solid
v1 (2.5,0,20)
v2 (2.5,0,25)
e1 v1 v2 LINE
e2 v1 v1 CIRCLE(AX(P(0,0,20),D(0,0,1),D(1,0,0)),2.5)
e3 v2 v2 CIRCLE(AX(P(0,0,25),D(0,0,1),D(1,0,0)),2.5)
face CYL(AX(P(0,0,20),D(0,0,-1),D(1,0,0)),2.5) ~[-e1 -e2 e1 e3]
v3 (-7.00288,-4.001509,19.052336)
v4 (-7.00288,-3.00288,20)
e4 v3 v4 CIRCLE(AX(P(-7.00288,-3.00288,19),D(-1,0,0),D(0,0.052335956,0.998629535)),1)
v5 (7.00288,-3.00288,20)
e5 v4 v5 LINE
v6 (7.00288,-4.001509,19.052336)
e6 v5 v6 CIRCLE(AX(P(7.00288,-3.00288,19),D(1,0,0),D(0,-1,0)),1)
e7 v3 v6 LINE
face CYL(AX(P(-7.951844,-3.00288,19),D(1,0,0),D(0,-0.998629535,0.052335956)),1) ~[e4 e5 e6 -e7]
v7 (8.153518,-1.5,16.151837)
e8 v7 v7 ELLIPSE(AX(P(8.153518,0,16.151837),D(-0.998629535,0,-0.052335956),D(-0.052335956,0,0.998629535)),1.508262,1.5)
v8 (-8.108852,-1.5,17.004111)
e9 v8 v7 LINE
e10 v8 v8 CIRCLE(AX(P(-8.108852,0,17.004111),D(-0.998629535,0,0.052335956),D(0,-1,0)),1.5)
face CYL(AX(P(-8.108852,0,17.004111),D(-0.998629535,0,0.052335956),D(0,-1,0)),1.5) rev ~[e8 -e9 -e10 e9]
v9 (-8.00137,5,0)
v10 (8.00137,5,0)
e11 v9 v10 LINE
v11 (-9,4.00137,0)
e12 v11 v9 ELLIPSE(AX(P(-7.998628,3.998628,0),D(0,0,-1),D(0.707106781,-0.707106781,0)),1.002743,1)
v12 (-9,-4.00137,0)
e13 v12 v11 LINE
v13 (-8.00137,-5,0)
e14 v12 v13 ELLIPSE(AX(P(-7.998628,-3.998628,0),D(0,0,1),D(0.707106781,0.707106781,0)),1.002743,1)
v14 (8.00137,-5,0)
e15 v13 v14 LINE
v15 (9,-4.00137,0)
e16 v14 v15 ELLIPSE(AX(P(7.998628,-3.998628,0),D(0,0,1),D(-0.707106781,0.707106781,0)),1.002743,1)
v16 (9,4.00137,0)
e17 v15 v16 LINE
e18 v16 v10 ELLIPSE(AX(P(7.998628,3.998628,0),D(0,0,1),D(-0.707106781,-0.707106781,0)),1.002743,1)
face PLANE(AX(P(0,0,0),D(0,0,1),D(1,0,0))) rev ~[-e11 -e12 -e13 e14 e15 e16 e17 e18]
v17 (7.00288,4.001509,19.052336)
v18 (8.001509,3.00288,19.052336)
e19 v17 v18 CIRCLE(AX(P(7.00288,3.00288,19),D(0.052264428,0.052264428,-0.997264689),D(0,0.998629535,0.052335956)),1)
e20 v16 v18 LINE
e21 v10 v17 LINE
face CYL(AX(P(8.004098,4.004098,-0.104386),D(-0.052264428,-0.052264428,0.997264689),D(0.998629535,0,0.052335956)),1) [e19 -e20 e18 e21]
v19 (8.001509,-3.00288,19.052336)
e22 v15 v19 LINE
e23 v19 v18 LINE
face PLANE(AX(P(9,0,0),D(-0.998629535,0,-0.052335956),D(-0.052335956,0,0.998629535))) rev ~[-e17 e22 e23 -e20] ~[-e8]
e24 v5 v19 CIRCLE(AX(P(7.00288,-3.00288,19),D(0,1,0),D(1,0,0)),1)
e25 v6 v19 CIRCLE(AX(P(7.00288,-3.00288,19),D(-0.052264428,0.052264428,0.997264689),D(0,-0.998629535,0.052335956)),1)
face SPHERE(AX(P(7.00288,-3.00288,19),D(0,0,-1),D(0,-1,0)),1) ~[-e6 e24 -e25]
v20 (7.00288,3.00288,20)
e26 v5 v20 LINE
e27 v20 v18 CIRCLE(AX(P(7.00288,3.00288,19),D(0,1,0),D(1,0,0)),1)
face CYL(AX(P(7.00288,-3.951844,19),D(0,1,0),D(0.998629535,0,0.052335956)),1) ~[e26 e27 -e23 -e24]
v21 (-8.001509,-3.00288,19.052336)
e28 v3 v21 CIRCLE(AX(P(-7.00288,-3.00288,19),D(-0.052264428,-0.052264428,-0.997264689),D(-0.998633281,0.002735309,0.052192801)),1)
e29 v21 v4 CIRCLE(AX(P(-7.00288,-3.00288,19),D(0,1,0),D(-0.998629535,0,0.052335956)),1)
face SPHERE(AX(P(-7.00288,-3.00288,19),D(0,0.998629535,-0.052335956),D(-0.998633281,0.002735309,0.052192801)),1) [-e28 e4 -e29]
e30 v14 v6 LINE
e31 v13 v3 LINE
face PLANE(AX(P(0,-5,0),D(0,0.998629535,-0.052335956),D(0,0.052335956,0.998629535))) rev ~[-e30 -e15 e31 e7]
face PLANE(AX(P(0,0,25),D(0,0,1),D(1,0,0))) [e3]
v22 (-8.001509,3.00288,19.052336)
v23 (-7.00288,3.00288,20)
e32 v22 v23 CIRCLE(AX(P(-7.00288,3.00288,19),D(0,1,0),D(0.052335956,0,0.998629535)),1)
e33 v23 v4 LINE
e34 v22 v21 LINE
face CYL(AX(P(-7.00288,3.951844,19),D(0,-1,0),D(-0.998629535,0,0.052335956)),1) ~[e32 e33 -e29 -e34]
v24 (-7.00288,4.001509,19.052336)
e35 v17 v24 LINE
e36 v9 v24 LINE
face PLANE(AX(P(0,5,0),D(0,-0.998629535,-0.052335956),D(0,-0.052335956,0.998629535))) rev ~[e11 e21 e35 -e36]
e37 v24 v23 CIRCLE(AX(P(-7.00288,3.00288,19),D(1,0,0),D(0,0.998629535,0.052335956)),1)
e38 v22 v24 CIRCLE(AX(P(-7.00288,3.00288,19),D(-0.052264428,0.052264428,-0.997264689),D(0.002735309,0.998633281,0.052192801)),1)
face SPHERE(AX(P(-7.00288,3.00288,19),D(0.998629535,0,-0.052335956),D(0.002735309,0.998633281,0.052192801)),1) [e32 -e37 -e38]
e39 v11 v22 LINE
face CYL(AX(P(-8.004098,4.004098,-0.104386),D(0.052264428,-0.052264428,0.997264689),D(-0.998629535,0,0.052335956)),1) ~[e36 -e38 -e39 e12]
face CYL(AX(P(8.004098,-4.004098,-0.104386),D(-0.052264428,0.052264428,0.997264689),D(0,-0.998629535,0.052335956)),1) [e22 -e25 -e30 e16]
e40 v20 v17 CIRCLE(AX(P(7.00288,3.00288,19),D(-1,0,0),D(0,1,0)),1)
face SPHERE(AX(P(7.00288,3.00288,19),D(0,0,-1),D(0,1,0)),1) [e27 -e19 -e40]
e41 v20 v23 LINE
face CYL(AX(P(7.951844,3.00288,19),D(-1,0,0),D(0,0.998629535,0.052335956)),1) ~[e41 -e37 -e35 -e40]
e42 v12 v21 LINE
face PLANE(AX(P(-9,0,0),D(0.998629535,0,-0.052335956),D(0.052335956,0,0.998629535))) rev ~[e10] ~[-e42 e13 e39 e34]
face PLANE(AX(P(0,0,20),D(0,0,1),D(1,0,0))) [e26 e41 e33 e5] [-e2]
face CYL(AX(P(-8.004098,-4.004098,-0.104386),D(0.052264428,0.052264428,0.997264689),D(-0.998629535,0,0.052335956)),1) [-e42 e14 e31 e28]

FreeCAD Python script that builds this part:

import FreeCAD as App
import Part
import Sketcher
from FreeCAD import Vector
Q = App.Units.Quantity


def edges_at(feature, points):
    """Names of the edges that pass closest to the given points."""
    edges = feature.Shape.Edges
    near = lambda p: min(range(len(edges)), key=lambda i: edges[i].distToShape(Part.Vertex(*p))[0])
    return sorted({f"Edge{near(p) + 1}" for p in points})

doc = App.newDocument("Part")
params = doc.addObject("Spreadsheet::Sheet", "Params")
for row, (alias, value) in enumerate([
    ("sketch1_width", "18 mm"),
    ("sketch1_height", "10 mm"),
    ("pad1_length", "20 mm"),
    ("pad1_taper", "-3 deg"),
    ("sketch2_diameter", "5 mm"),
    ("pad2_length", "5 mm"),
    ("fillet_radius", "1 mm"),
    ("sketch3_diameter", "3 mm"),
    ("pocket1_length", "25.4 mm"),
], start=1):
    params.set(f"A{row}", alias)
    params.set(f"B{row}", "=" + value)
    params.setAlias(f"B{row}", alias)

body = doc.addObject("PartDesign::Body", "Body")

# Sketch on XY plane
sketch1 = body.newObject("Sketcher::SketchObject", "Sketch")
sketch1.AttachmentSupport = (doc.getObject("XY_Plane"), [""])
sketch1.MapMode = "FlatFace"
sketch1.addGeometry([
    Part.LineSegment(Vector(-9, 5, 0), Vector(-9, -5, 0)),
    Part.LineSegment(Vector(-9, -5, 0), Vector(9, -5, 0)),
    Part.LineSegment(Vector(9, -5, 0), Vector(9, 5, 0)),
    Part.LineSegment(Vector(9, 5, 0), Vector(-9, 5, 0)),
], False)
sketch1.addConstraint([
    Sketcher.Constraint("Coincident", 0, 2, 1, 1),
    Sketcher.Constraint("Coincident", 1, 2, 2, 1),
    Sketcher.Constraint("Coincident", 2, 2, 3, 1),
    Sketcher.Constraint("Coincident", 3, 2, 0, 1),
    Sketcher.Constraint("Vertical", 0),
    Sketcher.Constraint("Horizontal", 1),
    Sketcher.Constraint("Vertical", 2),
    Sketcher.Constraint("Horizontal", 3),
    Sketcher.Constraint("Symmetric", 0, 2, 2, 2, -1, 1),
    Sketcher.Constraint("DistanceX", 1, 1, 1, 2, Q("18 mm")),
    Sketcher.Constraint("DistanceY", 0, 2, 0, 1, Q("10 mm")),
])
sketch1.setExpression("Constraints[9]", "Params.sketch1_width")
sketch1.setExpression("Constraints[10]", "Params.sketch1_height")
pad1 = body.newObject("PartDesign::Pad", "Pad")
pad1.Profile = sketch1
pad1.setExpression("Length", "Params.pad1_length")
pad1.setExpression("TaperAngle", "Params.pad1_taper")

# Sketch on XY plane
sketch2 = body.newObject("Sketcher::SketchObject", "Sketch001")
sketch2.AttachmentSupport = (doc.getObject("XY_Plane"), [""])
sketch2.MapMode = "FlatFace"
sketch2.AttachmentOffset = App.Placement(Vector(0, 0, 20), App.Rotation())
sketch2.addGeometry(Part.Circle(Vector(0, 0, 0), Vector(0, 0, 1), 2.5), False)
sketch2.addConstraint([
    Sketcher.Constraint("Coincident", 0, 3, -1, 1),
    Sketcher.Constraint("Diameter", 0, Q("5 mm")),
])
sketch2.setExpression("Constraints[1]", "Params.sketch2_diameter")
pad2 = body.newObject("PartDesign::Pad", "Pad001")
pad2.Profile = sketch2
pad2.setExpression("Length", "Params.pad2_length")
doc.recompute()

fillet = body.newObject("PartDesign::Fillet", "Fillet")
fillet.Base = (pad2, edges_at(pad2, [
    (8.476, 4.476, 10),
    (0, 3.952, 20),
    (-8.476, 4.476, 10),
    (-7.952, 0, 20),
    (-8.476, -4.476, 10),
    (8.476, -4.476, 10),
    (0, -3.952, 20),
    (7.952, 0, 20),
]))
fillet.setExpression("Radius", "Params.fillet_radius")

# Sketch on an angled plane
sketch3 = body.newObject("Sketcher::SketchObject", "Sketch002")
sketch3.Placement = App.Placement(Vector(-8.975349, 0, 0.470378), App.Rotation(Vector(0, -1, 0), Vector(0.052335956, 0, 0.998629535), Vector(-0.998629535, 0, 0.052335956), "ZXY"))
sketch3.addGeometry(Part.Circle(Vector(0, 16.6, 0), Vector(0, 0, 1), 1.5), False)
sketch3.addConstraint([
    Sketcher.Constraint("PointOnObject", 0, 3, -2),
    Sketcher.Constraint("Diameter", 0, Q("3 mm")),
    Sketcher.Constraint("DistanceY", -1, 1, 0, 3, Q("16.556423 mm")),
])
sketch3.setExpression("Constraints[1]", "Params.sketch3_diameter")
pocket1 = body.newObject("PartDesign::Pocket", "Pocket")
pocket1.Profile = sketch3
pocket1.setExpression("Length", "Params.pocket1_length")

doc.recompute()
